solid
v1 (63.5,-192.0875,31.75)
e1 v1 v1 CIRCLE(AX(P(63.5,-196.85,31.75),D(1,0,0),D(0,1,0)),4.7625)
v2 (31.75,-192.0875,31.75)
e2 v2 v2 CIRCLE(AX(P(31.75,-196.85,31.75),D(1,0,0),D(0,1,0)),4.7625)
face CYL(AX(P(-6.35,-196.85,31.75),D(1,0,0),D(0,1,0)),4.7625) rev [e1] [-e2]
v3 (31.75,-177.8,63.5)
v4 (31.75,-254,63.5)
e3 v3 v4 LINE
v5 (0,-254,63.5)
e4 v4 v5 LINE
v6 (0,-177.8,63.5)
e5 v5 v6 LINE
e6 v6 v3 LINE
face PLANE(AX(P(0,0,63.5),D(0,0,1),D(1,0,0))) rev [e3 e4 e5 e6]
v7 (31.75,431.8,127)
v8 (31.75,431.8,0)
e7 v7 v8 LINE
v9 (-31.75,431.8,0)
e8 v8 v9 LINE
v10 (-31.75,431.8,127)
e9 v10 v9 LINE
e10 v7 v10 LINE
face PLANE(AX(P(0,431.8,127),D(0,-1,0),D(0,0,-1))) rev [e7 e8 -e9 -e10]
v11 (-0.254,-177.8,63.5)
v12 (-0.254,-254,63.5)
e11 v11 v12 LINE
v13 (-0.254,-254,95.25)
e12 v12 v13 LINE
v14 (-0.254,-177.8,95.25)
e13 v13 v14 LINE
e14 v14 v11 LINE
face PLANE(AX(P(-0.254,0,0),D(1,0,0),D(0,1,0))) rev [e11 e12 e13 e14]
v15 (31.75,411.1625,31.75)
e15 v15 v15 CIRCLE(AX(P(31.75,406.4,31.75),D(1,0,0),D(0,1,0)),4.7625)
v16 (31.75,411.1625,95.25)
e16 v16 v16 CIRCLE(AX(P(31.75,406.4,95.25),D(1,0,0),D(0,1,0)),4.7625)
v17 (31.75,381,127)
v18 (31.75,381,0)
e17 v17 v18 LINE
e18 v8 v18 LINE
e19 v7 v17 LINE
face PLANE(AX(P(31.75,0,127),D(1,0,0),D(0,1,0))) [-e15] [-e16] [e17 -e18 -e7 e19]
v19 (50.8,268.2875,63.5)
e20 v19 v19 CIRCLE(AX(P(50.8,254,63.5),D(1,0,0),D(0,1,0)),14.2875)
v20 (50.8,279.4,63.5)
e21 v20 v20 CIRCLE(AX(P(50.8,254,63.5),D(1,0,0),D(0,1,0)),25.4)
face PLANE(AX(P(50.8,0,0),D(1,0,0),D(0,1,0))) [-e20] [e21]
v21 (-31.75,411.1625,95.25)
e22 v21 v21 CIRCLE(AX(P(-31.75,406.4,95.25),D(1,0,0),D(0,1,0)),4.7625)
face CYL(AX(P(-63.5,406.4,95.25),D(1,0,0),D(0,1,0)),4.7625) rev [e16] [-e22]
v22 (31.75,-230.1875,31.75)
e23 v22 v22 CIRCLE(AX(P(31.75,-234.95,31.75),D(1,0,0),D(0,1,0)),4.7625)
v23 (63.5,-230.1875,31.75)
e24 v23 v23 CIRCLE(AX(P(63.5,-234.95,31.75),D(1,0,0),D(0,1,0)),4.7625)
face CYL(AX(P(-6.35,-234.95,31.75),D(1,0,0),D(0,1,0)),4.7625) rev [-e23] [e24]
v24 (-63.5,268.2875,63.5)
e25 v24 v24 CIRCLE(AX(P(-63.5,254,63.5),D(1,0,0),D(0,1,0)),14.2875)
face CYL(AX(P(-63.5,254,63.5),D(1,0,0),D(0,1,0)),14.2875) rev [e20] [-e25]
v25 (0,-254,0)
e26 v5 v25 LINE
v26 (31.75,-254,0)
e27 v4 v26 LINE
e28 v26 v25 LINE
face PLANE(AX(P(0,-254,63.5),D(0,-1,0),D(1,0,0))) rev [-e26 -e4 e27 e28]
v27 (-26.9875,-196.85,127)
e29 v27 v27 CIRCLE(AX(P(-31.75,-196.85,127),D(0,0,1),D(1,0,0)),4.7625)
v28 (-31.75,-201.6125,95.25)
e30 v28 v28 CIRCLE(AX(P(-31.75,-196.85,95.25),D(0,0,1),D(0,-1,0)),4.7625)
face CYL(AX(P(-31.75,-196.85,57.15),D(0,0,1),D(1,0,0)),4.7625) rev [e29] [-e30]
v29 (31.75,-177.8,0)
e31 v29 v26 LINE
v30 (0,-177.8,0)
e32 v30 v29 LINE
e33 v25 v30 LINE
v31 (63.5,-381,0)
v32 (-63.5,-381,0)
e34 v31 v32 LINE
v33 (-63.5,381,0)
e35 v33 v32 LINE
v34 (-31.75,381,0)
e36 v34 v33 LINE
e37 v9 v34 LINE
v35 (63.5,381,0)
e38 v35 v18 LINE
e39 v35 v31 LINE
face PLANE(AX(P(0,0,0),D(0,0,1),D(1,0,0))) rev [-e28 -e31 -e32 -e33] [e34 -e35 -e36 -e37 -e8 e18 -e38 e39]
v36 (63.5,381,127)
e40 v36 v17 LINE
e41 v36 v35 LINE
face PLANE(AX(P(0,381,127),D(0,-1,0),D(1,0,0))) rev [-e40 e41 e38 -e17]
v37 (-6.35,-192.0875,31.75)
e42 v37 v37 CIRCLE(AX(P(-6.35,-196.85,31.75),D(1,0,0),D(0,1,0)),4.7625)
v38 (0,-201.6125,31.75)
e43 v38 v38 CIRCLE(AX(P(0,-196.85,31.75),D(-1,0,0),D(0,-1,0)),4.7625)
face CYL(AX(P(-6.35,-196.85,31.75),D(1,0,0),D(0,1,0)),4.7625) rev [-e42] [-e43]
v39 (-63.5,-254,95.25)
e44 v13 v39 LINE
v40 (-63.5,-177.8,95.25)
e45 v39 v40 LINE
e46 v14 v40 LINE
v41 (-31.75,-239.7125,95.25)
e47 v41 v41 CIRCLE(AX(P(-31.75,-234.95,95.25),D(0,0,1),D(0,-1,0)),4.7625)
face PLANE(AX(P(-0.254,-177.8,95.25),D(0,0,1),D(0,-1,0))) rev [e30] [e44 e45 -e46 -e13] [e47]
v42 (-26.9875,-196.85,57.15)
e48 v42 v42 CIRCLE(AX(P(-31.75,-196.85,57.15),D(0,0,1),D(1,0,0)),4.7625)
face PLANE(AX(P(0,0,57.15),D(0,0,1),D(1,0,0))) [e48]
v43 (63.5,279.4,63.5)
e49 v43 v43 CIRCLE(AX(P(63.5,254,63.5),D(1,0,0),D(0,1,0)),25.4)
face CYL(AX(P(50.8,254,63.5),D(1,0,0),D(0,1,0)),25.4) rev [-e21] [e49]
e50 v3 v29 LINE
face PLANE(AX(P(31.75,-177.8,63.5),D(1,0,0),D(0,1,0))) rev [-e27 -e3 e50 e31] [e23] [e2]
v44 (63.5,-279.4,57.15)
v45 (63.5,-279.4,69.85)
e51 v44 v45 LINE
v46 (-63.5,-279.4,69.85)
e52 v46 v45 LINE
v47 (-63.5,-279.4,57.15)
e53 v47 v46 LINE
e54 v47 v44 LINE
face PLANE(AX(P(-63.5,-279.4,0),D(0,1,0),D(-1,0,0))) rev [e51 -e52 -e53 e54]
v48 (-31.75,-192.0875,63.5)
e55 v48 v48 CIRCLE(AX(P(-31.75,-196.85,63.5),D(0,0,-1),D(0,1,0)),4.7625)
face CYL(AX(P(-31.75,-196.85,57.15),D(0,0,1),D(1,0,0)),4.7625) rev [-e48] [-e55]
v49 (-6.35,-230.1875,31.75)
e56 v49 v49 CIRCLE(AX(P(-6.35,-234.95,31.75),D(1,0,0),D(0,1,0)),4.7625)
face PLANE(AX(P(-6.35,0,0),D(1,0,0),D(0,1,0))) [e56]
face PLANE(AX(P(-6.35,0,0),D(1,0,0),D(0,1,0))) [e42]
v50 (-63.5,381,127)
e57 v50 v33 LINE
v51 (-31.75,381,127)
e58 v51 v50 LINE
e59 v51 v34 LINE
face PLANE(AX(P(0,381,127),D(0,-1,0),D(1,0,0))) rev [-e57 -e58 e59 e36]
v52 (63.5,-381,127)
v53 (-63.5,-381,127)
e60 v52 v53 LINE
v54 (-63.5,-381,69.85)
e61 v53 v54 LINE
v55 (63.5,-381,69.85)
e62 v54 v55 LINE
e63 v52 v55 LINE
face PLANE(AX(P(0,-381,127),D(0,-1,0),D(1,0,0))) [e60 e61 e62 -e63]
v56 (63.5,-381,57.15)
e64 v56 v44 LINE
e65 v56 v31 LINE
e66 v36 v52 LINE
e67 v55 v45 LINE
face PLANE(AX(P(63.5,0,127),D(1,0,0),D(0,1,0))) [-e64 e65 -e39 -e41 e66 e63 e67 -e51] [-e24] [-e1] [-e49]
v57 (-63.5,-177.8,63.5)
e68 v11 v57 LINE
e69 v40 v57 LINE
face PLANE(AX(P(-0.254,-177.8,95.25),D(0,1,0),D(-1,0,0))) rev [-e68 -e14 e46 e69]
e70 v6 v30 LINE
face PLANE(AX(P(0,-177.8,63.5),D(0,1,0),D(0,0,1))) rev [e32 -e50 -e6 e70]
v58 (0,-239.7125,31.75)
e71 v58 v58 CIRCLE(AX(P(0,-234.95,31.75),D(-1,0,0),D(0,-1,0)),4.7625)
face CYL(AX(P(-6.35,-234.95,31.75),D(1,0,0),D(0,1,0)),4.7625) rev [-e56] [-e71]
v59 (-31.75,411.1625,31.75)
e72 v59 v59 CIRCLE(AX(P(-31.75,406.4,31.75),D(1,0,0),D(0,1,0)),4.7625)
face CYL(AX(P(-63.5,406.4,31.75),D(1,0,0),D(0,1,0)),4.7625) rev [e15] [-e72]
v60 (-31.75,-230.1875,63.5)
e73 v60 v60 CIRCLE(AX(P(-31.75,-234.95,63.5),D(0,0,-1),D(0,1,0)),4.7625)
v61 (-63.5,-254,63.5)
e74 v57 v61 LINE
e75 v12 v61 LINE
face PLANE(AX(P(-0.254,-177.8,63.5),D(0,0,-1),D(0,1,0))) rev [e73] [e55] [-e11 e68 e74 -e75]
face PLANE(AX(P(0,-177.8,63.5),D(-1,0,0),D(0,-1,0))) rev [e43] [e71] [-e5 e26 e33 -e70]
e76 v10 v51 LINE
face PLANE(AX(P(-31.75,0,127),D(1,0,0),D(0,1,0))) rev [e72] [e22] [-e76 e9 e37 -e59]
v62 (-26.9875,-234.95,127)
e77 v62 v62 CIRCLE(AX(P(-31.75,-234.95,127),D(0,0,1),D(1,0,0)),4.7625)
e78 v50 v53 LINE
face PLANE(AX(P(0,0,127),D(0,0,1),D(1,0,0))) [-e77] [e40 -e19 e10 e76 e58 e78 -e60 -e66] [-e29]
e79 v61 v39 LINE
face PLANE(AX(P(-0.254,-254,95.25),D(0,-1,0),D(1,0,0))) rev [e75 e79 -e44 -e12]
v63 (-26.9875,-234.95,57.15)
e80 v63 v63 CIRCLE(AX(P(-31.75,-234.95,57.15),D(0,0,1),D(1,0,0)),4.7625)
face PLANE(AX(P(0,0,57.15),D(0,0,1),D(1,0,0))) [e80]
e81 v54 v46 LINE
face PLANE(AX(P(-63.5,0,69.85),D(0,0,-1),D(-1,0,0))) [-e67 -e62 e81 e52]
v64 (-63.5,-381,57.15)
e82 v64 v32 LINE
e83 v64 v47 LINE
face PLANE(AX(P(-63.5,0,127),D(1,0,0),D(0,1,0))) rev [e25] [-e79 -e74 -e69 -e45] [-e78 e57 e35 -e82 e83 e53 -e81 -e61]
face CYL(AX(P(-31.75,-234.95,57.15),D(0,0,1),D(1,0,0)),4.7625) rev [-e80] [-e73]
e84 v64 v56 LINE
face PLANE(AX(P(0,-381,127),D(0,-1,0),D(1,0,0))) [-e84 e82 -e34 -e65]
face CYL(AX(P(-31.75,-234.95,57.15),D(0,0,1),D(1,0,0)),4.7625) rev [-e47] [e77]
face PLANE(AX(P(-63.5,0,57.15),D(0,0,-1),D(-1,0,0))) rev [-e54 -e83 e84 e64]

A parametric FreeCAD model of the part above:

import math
import FreeCAD as App
import Part
import Sketcher
Q = App.Units.Quantity


def add_polygon(sketch, points):
    """Adds a closed chain of lines whose ends are joined by coincident constraints."""
    first, n = sketch.GeometryCount, len(points)
    for a, b in zip(points, points[1:] + points[:1]):
        sketch.addGeometry(Part.LineSegment(App.Vector(*a, 0), App.Vector(*b, 0)), False)
    for i in range(n):
        sketch.addConstraint(Sketcher.Constraint("Coincident", first + i, 2, first + (i + 1) % n, 1))

doc = App.newDocument("Part")
body = doc.addObject("PartDesign::Body", "Body")

# Sketch on XY plane
sketch1 = body.newObject("Sketcher::SketchObject", "Sketch")
sketch1.AttachmentSupport = (doc.getObject("XY_Plane"), [""])
sketch1.MapMode = "FlatFace"
add_polygon(sketch1, [(63.5, -381), (63.5, 381), (31.75, 381), (31.75, 431.8), (-31.75, 431.8), (-31.75, 381), (-63.5, 381), (-63.5, -381)])  # lines 0-7
sketch1.addConstraint([
    Sketcher.Constraint("Vertical", 0),
    Sketcher.Constraint("Horizontal", 1),
    Sketcher.Constraint("Vertical", 2),
    Sketcher.Constraint("Horizontal", 3),
    Sketcher.Constraint("Vertical", 4),
    Sketcher.Constraint("Horizontal", 5),
    Sketcher.Constraint("Vertical", 6),
    Sketcher.Constraint("Horizontal", 7),
    Sketcher.Constraint("Symmetric", 0, 2, 6, 2, -1, 1),
    Sketcher.Constraint("Symmetric", 1, 2, 4, 2, -2),
    Sketcher.Constraint("DistanceX", 7, 1, 7, 2, Q("5 in")),
    Sketcher.Constraint("DistanceY", 0, 1, 0, 2, Q("30 in")),
    Sketcher.Constraint("DistanceY", 2, 1, 2, 2, Q("2 in")),
    Sketcher.Constraint("DistanceX", 3, 2, 3, 1, Q("2.5 in")),
])
pad1 = body.newObject("PartDesign::Pad", "Pad")
pad1.Profile = sketch1
pad1.Length = Q("5 in")

# Sketch on YZ plane
sketch2 = body.newObject("Sketcher::SketchObject", "Sketch001")
sketch2.AttachmentSupport = (doc.getObject("YZ_Plane"), [""])
sketch2.MapMode = "FlatFace"
sketch2.AttachmentOffset = App.Placement(App.Vector(0, 0, 2.5 * 25.4), App.Rotation())
sketch2.addGeometry(Part.Circle(App.Vector(406.4, 95.25, 0), App.Vector(0, 0, 1), 4.7625), False)  # 0
sketch2.addGeometry(Part.Circle(App.Vector(406.4, 31.75, 0), App.Vector(0, 0, 1), 4.7625), False)  # 1
sketch2.addGeometry(Part.Circle(App.Vector(254, 63.5, 0), App.Vector(0, 0, 1), 14.2875), False)  # 2
add_polygon(sketch2, [(-279.4, 69.85), (-381, 69.85), (-381, 57.15), (-279.4, 57.15)])  # lines 3-6
sketch2.addConstraint([
    Sketcher.Constraint("Horizontal", 3),
    Sketcher.Constraint("Vertical", 4),
    Sketcher.Constraint("Horizontal", 5),
    Sketcher.Constraint("Vertical", 6),
    Sketcher.Constraint("Equal", 0, 1),
    Sketcher.Constraint("Vertical", 0, 3, 1, 3),
    Sketcher.Constraint("DistanceX", 3, 2, 3, 1, Q("4 in")),
    Sketcher.Constraint("Diameter", 0, Q("0.375 in")),
    Sketcher.Constraint("Diameter", 2, Q("1.125 in")),
    Sketcher.Constraint("DistanceY", 4, 2, 4, 1, Q("0.5 in")),
    Sketcher.Constraint("DistanceX", -1, 1, 0, 3, Q("16 in")),
    Sketcher.Constraint("DistanceX", -1, 1, 2, 3, Q("10 in")),
    Sketcher.Constraint("DistanceX", 3, 2, -1, 1, Q("15 in")),
    Sketcher.Constraint("DistanceY", 3, 2, 0, 3, Q("1 in")),
    Sketcher.Constraint("DistanceY", 1, 3, 4, 2, Q("1 in")),
    Sketcher.Constraint("DistanceY", -1, 1, 2, 3, Q("2.5 in")),
    Sketcher.Constraint("DistanceY", -1, 1, 0, 3, Q("3.75 in")),
])
pocket1 = body.newObject("PartDesign::Pocket", "Pocket")
pocket1.Profile = sketch2
pocket1.Type = "ThroughAll"

# Sketch on XY plane
sketch3 = body.newObject("Sketcher::SketchObject", "Sketch002")
sketch3.AttachmentSupport = (doc.getObject("XY_Plane"), [""])
sketch3.MapMode = "FlatFace"
add_polygon(sketch3, [(31.75, -177.8), (31.75, -254), (0, -254), (0, -177.8)])  # lines 0-3
sketch3.addConstraint([
    Sketcher.Constraint("Vertical", 0),
    Sketcher.Constraint("Horizontal", 1),
    Sketcher.Constraint("Vertical", 2),
    Sketcher.Constraint("Horizontal", 3),
    Sketcher.Constraint("PointOnObject", 1, 2, -2),
    Sketcher.Constraint("DistanceY", 0, 2, 0, 1, Q("3 in")),
    Sketcher.Constraint("DistanceY", 0, 2, -1, 1, Q("10 in")),
    Sketcher.Constraint("DistanceX", 1, 2, 1, 1, Q("1.25 in")),
])
pocket2 = body.newObject("PartDesign::Pocket", "Pocket001")
pocket2.Profile = sketch3
pocket2.Length = Q("2.5 in")
pocket2.Reversed = True

# Sketch on YZ plane
sketch4 = body.newObject("Sketcher::SketchObject", "Sketch003")
sketch4.AttachmentSupport = (doc.getObject("YZ_Plane"), [""])
sketch4.MapMode = "FlatFace"
sketch4.AttachmentOffset = App.Placement(App.Vector(0, 0, 2.5 * 25.4), App.Rotation())
sketch4.addGeometry([
    Part.Circle(App.Vector(254, 63.5, 0), App.Vector(0, 0, 1), 25.4),
    Part.Circle(App.Vector(254, 63.5, 0), App.Vector(0, 0, 1), 14.2875),
], False)
sketch4.addConstraint([
    Sketcher.Constraint("Coincident", 1, 3, 0, 3),
    Sketcher.Constraint("Diameter", 0, Q("2 in")),
    Sketcher.Constraint("Diameter", 1, Q("1.125 in")),
    Sketcher.Constraint("DistanceX", -1, 1, 0, 3, Q("10 in")),
    Sketcher.Constraint("DistanceY", -1, 1, 0, 3, Q("2.5 in")),
])
pocket3 = body.newObject("PartDesign::Pocket", "Pocket002")
pocket3.Profile = sketch4
pocket3.Length = Q("0.5 in")

# Sketch on YZ plane
sketch5 = body.newObject("Sketcher::SketchObject", "Sketch004")
sketch5.AttachmentSupport = (doc.getObject("YZ_Plane"), [""])
sketch5.MapMode = "FlatFace"
sketch5.AttachmentOffset = App.Placement(App.Vector(0, 0, 2.5 * 25.4), App.Rotation())
sketch5.addGeometry([
    Part.ArcOfCircle(Part.Circle(App.Vector(-234.95, 31.75, 0), App.Vector(0, 0, 1), 4.7625), math.radians(-90), math.radians(0)),  # 0
    Part.ArcOfCircle(Part.Circle(App.Vector(-234.95, 31.75, 0), App.Vector(0, 0, 1), 4.7625), math.radians(0), math.radians(180)),  # 1
    Part.ArcOfCircle(Part.Circle(App.Vector(-234.95, 31.75, 0), App.Vector(0, 0, 1), 4.7625), math.radians(-180), math.radians(-90)),  # 2
    Part.ArcOfCircle(Part.Circle(App.Vector(-196.85, 31.75, 0), App.Vector(0, 0, 1), 4.7625), math.radians(-90), math.radians(0)),  # 3
    Part.ArcOfCircle(Part.Circle(App.Vector(-196.85, 31.75, 0), App.Vector(0, 0, 1), 4.7625), math.radians(0), math.radians(180)),  # 4
    Part.ArcOfCircle(Part.Circle(App.Vector(-196.85, 31.75, 0), App.Vector(0, 0, 1), 4.7625), math.radians(-180), math.radians(-90)),  # 5
], False)
sketch5.addConstraint([
    Sketcher.Constraint("Tangent", 0, 2, 1, 1),
    Sketcher.Constraint("Tangent", 1, 2, 2, 1),
    Sketcher.Constraint("Tangent", 2, 2, 0, 1),
    Sketcher.Constraint("Tangent", 3, 2, 4, 1),
    Sketcher.Constraint("Tangent", 4, 2, 5, 1),
    Sketcher.Constraint("Tangent", 5, 2, 3, 1),
    Sketcher.Constraint("Equal", 2, 3),
    Sketcher.Constraint("Horizontal", 2, 3, 3, 3),
    Sketcher.Constraint("Horizontal", 5, 3, 0, 2),
    Sketcher.Constraint("Horizontal", 0, 2, 1, 2),
    Sketcher.Constraint("Horizontal", 1, 2, 3, 2),
    Sketcher.Constraint("Horizontal", 3, 2, 4, 2),
    Sketcher.Constraint("Vertical", 1, 3, 2, 2),
    Sketcher.Constraint("Vertical", 4, 3, 5, 2),
    Sketcher.Constraint("Radius", 0, Q("0.1875 in")),
    Sketcher.Constraint("DistanceX", 2, 3, 3, 3, Q("1.5 in")),
    Sketcher.Constraint("DistanceX", 0, 3, -1, 1, Q("9.25 in")),
    Sketcher.Constraint("DistanceY", -1, 1, 0, 3, Q("1.25 in")),
])
pocket4 = body.newObject("PartDesign::Pocket", "Pocket003")
pocket4.Profile = sketch5
pocket4.Length = Q("2.75 in")

# Sketch on YZ plane
sketch6 = body.newObject("Sketcher::SketchObject", "Sketch005")
sketch6.AttachmentSupport = (doc.getObject("YZ_Plane"), [""])
sketch6.MapMode = "FlatFace"
sketch6.AttachmentOffset = App.Placement(App.Vector(0, 0, -2.5 * 25.4), App.Rotation())
add_polygon(sketch6, [(-177.8, 63.5), (-254, 63.5), (-254, 95.25), (-177.8, 95.25)])  # lines 0-3
sketch6.addConstraint([
    Sketcher.Constraint("Horizontal", 0),
    Sketcher.Constraint("Vertical", 1),
    Sketcher.Constraint("Horizontal", 2),
    Sketcher.Constraint("Vertical", 3),
    Sketcher.Constraint("DistanceX", 0, 2, 0, 1, Q("3 in")),
    Sketcher.Constraint("DistanceX", 0, 2, -1, 1, Q("10 in")),
    Sketcher.Constraint("DistanceY", 1, 1, 1, 2, Q("1.25 in")),
    Sketcher.Constraint("DistanceY", -1, 1, 0, 2, Q("2.5 in")),
])
pocket5 = body.newObject("PartDesign::Pocket", "Pocket004")
pocket5.Profile = sketch6
pocket5.Length = Q("2.49 in")
pocket5.Reversed = True

# Sketch on XY plane
sketch7 = body.newObject("Sketcher::SketchObject", "Sketch006")
sketch7.AttachmentSupport = (doc.getObject("XY_Plane"), [""])
sketch7.MapMode = "FlatFace"
sketch7.AttachmentOffset = App.Placement(App.Vector(0, 0, 5 * 25.4), App.Rotation())
sketch7.addGeometry([
    Part.ArcOfCircle(Part.Circle(App.Vector(-31.75, -234.95, 0), App.Vector(0, 0, 1), 4.7625), math.radians(0), math.radians(90)),  # 0
    Part.ArcOfCircle(Part.Circle(App.Vector(-31.75, -234.95, 0), App.Vector(0, 0, 1), 4.7625), math.radians(90), math.radians(270)),  # 1
    Part.ArcOfCircle(Part.Circle(App.Vector(-31.75, -234.95, 0), App.Vector(0, 0, 1), 4.7625), math.radians(-90), math.radians(0)),  # 2
    Part.ArcOfCircle(Part.Circle(App.Vector(-31.75, -196.85, 0), App.Vector(0, 0, 1), 4.7625), math.radians(0), math.radians(90)),  # 3
    Part.ArcOfCircle(Part.Circle(App.Vector(-31.75, -196.85, 0), App.Vector(0, 0, 1), 4.7625), math.radians(90), math.radians(270)),  # 4
    Part.ArcOfCircle(Part.Circle(App.Vector(-31.75, -196.85, 0), App.Vector(0, 0, 1), 4.7625), math.radians(-90), math.radians(0)),  # 5
], False)
sketch7.addConstraint([
    Sketcher.Constraint("Tangent", 0, 2, 1, 1),
    Sketcher.Constraint("Tangent", 1, 2, 2, 1),
    Sketcher.Constraint("Tangent", 2, 2, 0, 1),
    Sketcher.Constraint("Tangent", 3, 2, 4, 1),
    Sketcher.Constraint("Tangent", 4, 2, 5, 1),
    Sketcher.Constraint("Tangent", 5, 2, 3, 1),
    Sketcher.Constraint("Equal", 2, 3),
    Sketcher.Constraint("Horizontal", 1, 3, 2, 2),
    Sketcher.Constraint("Horizontal", 4, 3, 5, 2),
    Sketcher.Constraint("Vertical", 2, 3, 3, 3),
    Sketcher.Constraint("Vertical", 5, 3, 0, 2),
    Sketcher.Constraint("Vertical", 0, 2, 1, 2),
    Sketcher.Constraint("Vertical", 1, 2, 3, 2),
    Sketcher.Constraint("Vertical", 3, 2, 4, 2),
    Sketcher.Constraint("Radius", 0, Q("0.1875 in")),
    Sketcher.Constraint("DistanceY", 2, 3, 3, 3, Q("1.5 in")),
    Sketcher.Constraint("DistanceX", 0, 3, -1, 1, Q("1.25 in")),
    Sketcher.Constraint("DistanceY", 0, 3, -1, 1, Q("9.25 in")),
])
pocket6 = body.newObject("PartDesign::Pocket", "Pocket005")
pocket6.Profile = sketch7
pocket6.Length = Q("2.75 in")

doc.recompute()
